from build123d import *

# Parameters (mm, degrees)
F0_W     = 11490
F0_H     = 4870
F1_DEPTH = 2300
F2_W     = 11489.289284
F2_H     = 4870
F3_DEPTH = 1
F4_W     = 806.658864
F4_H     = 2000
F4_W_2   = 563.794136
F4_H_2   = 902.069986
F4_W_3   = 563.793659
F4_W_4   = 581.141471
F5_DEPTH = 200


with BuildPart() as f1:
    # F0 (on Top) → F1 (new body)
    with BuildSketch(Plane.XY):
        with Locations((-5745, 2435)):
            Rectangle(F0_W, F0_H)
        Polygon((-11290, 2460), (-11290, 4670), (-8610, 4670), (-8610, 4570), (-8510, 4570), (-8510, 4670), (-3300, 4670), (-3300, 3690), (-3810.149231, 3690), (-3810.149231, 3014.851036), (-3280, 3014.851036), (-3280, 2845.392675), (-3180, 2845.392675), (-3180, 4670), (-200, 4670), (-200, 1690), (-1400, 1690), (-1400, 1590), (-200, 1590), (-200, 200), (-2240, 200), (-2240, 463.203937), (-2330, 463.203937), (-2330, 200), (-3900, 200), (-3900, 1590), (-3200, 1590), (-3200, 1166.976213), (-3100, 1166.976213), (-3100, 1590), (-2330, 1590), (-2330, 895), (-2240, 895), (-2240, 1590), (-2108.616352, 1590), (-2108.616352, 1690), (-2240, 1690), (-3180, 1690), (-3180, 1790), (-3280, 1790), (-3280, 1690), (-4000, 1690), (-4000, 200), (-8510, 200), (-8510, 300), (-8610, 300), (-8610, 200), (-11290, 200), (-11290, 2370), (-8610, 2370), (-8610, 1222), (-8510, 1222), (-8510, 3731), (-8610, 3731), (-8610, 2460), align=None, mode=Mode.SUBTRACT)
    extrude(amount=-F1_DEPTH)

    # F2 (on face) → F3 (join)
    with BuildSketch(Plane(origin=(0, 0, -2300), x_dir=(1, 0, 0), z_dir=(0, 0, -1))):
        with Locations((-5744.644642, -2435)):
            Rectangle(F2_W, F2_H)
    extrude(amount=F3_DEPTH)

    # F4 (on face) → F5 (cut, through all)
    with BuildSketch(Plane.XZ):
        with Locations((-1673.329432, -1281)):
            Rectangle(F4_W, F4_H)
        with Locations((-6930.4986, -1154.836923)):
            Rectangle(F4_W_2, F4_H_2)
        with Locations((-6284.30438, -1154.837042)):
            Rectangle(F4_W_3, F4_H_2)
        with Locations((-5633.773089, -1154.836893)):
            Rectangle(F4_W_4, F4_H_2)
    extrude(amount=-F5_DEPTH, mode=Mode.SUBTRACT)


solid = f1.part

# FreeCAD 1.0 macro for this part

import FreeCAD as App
import Part
import Sketcher


def add_polygon(sketch, points):
    """Adds a closed chain of lines whose ends are joined by coincident constraints."""
    first, n = sketch.GeometryCount, len(points)
    for a, b in zip(points, points[1:] + points[:1]):
        sketch.addGeometry(Part.LineSegment(App.Vector(*a, 0), App.Vector(*b, 0)), False)
    for i in range(n):
        sketch.addConstraint(Sketcher.Constraint("Coincident", first + i, 2, first + (i + 1) % n, 1))

doc = App.newDocument("Part")
body = doc.addObject("PartDesign::Body", "Body")

# Sketch on XY plane
sketch1 = doc.addObject("Sketcher::SketchObject", "Sketch")
body.addObject(sketch1)
sketch1.AttachmentSupport = (doc.XY_Plane, [""])
sketch1.MapMode = "FlatFace"
add_polygon(sketch1, [(-11490, 4870), (-11490, 0), (0, 0), (0, 4870)])  # lines 0-3
add_polygon(sketch1, [(-8610, 2460), (-11290, 2460), (-11290, 4670), (-8610, 4670), (-8610, 4570), (-8510, 4570), (-8510, 4670), (-3300, 4670), (-3300, 3690), (-3810, 3690), (-3810, 3015), (-3280, 3015), (-3280, 2845), (-3180, 2845), (-3180, 4670), (-200, 4670), (-200, 1690), (-1400, 1690), (-1400, 1590), (-200, 1590), (-200, 200), (-2240, 200), (-2240, 463), (-2330, 463), (-2330, 200), (-3900, 200), (-3900, 1590), (-3200, 1590), (-3200, 1167), (-3100, 1167), (-3100, 1590), (-2330, 1590), (-2330, 895), (-2240, 895), (-2240, 1590), (-2109, 1590), (-2109, 1690), (-3180, 1690), (-3180, 1790), (-3280, 1790), (-3280, 1690), (-4000, 1690), (-4000, 200), (-8510, 200), (-8510, 300), (-8610, 300), (-8610, 200), (-11290, 200), (-11290, 2370), (-8610, 2370), (-8610, 1222), (-8510, 1222), (-8510, 3731), (-8610, 3731)])  # lines 4-57
sketch1.addConstraint([
    Sketcher.Constraint("Vertical", 0),
    Sketcher.Constraint("Horizontal", 1),
    Sketcher.Constraint("Vertical", 2),
    Sketcher.Constraint("Horizontal", 3),
    Sketcher.Constraint("Horizontal", 4),
    Sketcher.Constraint("Vertical", 5),
    Sketcher.Constraint("Horizontal", 6),
    Sketcher.Constraint("Vertical", 7),
    Sketcher.Constraint("Horizontal", 8),
    Sketcher.Constraint("Vertical", 9),
    Sketcher.Constraint("Horizontal", 10),
    Sketcher.Constraint("Vertical", 11),
    Sketcher.Constraint("Horizontal", 12),
    Sketcher.Constraint("Vertical", 13),
    Sketcher.Constraint("Horizontal", 14),
    Sketcher.Constraint("Vertical", 15),
    Sketcher.Constraint("Horizontal", 16),
    Sketcher.Constraint("Vertical", 17),
    Sketcher.Constraint("Horizontal", 18),
    Sketcher.Constraint("Vertical", 19),
    Sketcher.Constraint("Horizontal", 20),
    Sketcher.Constraint("Vertical", 21),
    Sketcher.Constraint("Horizontal", 22),
    Sketcher.Constraint("Vertical", 23),
    Sketcher.Constraint("Horizontal", 24),
    Sketcher.Constraint("Vertical", 25),
    Sketcher.Constraint("Horizontal", 26),
    Sketcher.Constraint("Vertical", 27),
    Sketcher.Constraint("Horizontal", 28),
    Sketcher.Constraint("Vertical", 29),
    Sketcher.Constraint("Horizontal", 30),
    Sketcher.Constraint("Vertical", 31),
    Sketcher.Constraint("Horizontal", 32),
    Sketcher.Constraint("Vertical", 33),
    Sketcher.Constraint("Horizontal", 34),
    Sketcher.Constraint("Vertical", 35),
    Sketcher.Constraint("Horizontal", 36),
    Sketcher.Constraint("Vertical", 37),
    Sketcher.Constraint("Horizontal", 38),
    Sketcher.Constraint("Vertical", 39),
    Sketcher.Constraint("Horizontal", 40),
    Sketcher.Constraint("Vertical", 41),
    Sketcher.Constraint("Horizontal", 42),
    Sketcher.Constraint("Vertical", 43),
    Sketcher.Constraint("Horizontal", 44),
    Sketcher.Constraint("Vertical", 45),
    Sketcher.Constraint("Horizontal", 46),
    Sketcher.Constraint("Vertical", 47),
    Sketcher.Constraint("Horizontal", 48),
    Sketcher.Constraint("Vertical", 49),
    Sketcher.Constraint("Horizontal", 50),
    Sketcher.Constraint("Vertical", 51),
    Sketcher.Constraint("Horizontal", 52),
    Sketcher.Constraint("Vertical", 53),
    Sketcher.Constraint("Horizontal", 54),
    Sketcher.Constraint("Vertical", 55),
    Sketcher.Constraint("Horizontal", 56),
    Sketcher.Constraint("Vertical", 57),
    Sketcher.Constraint("Coincident", 1, 2, -1, 1),
    Sketcher.Constraint("Horizontal", 6, 2, 9, 2),
    Sketcher.Constraint("Horizontal", 10, 2, 17, 2),
    Sketcher.Constraint("Horizontal", 24, 2, 27, 2),
    Sketcher.Constraint("Horizontal", 22, 2, 29, 2),
    Sketcher.Constraint("Horizontal", 30, 2, 33, 2),
    Sketcher.Constraint("Horizontal", 34, 2, 37, 2),
    Sketcher.Constraint("Horizontal", 20, 2, 39, 2),
    Sketcher.Constraint("Horizontal", 40, 2, 43, 2),
    Sketcher.Constraint("Horizontal", 28, 2, 45, 2),
    Sketcher.Constraint("Horizontal", 46, 2, 49, 2),
    Sketcher.Constraint("Vertical", 19, 2, 22, 2),
    Sketcher.Constraint("Vertical", 27, 2, 34, 2),
    Sketcher.Constraint("Vertical", 25, 2, 36, 2),
    Sketcher.Constraint("Vertical", 17, 2, 40, 2),
    Sketcher.Constraint("Vertical", 15, 2, 42, 2),
    Sketcher.Constraint("Vertical", 9, 2, 46, 2),
    Sketcher.Constraint("Vertical", 7, 2, 48, 2),
    Sketcher.Constraint("Vertical", 5, 2, 50, 2),
    Sketcher.Constraint("Vertical", 49, 2, 52, 2),
    Sketcher.Constraint("Vertical", 47, 2, 54, 2),
    Sketcher.Constraint("Vertical", 53, 2, 56, 2),
    Sketcher.Constraint("Equal", 8, 16),
    Sketcher.Constraint("Equal", 16, 32),
    Sketcher.Constraint("Equal", 56, 7),
    Sketcher.Constraint("Equal", 18, 19),
    Sketcher.Constraint("Equal", 9, 21),
    Sketcher.Constraint("Equal", 39, 41),
    Sketcher.Constraint("Equal", 43, 47),
    Sketcher.Constraint("DistanceX", 1, 1, 1, 2, 11490.0),
    Sketcher.Constraint("DistanceX", 4, 2, 4, 1, 2680.0),
    Sketcher.Constraint("DistanceX", 8, 1, 8, 2, 100.0),
    Sketcher.Constraint("DistanceX", 10, 1, 10, 2, 5210.0),
    Sketcher.Constraint("DistanceX", 18, 1, 18, 2, 2980.0),
    Sketcher.Constraint("DistanceX", 20, 2, 20, 1, 1200.0),
    Sketcher.Constraint("DistanceX", 24, 2, 24, 1, 2040.0),
    Sketcher.Constraint("DistanceX", 26, 2, 26, 1, 90.0),
    Sketcher.Constraint("DistanceX", 28, 2, 28, 1, 1570.0),
    Sketcher.Constraint("DistanceX", 30, 1, 30, 2, 700.0),
    Sketcher.Constraint("DistanceX", 44, 2, 44, 1, 720.0),
    Sketcher.Constraint("DistanceX", 46, 2, 46, 1, 4510.0),
    Sketcher.Constraint("DistanceY", 0, 2, 0, 1, 4870.0),
    Sketcher.Constraint("DistanceY", 5, 1, 5, 2, 2210.0),
    Sketcher.Constraint("DistanceY", 11, 2, 11, 1, 980.0),
    Sketcher.Constraint("DistanceY", 23, 2, 23, 1, 1390.0),
    Sketcher.Constraint("DistanceY", 35, 2, 35, 1, 695.0),
    Sketcher.Constraint("DistanceY", 51, 1, 51, 2, 2170.0),
    Sketcher.Constraint("DistanceY", 53, 2, 53, 1, 1148.0),
    Sketcher.Constraint("DistanceY", 55, 1, 55, 2, 2509.0),
    Sketcher.Constraint("DistanceX", 4, 2, -1, 1, 11290.0),
    Sketcher.Constraint("DistanceY", -1, 1, 4, 2, 2460.0),
    Sketcher.Constraint("DistanceX", 12, 2, 12, 1, 510.149231),
    Sketcher.Constraint("DistanceX", 38, 1, 38, 2, 131.383648),
    Sketcher.Constraint("DistanceY", 15, 2, 15, 1, 169.458361),
    Sketcher.Constraint("DistanceY", 13, 2, 13, 1, 675.148964),
    Sketcher.Constraint("DistanceY", 25, 1, 25, 2, 263.203937),
    Sketcher.Constraint("DistanceY", 31, 2, 31, 1, 423.023787),
])
pad1 = doc.addObject("PartDesign::Pad", "Pad")
body.addObject(pad1)
pad1.Profile = sketch1
pad1.Length = 2300
pad1.Reversed = True

# Sketch on XY plane
sketch2 = doc.addObject("Sketcher::SketchObject", "Sketch001")
body.addObject(sketch2)
sketch2.AttachmentSupport = (doc.XY_Plane, [""])
sketch2.MapMode = "FlatFace"
sketch2.AttachmentOffset = App.Placement(App.Vector(0, 0, -2300), App.Rotation())
add_polygon(sketch2, [(-11489, 0), (-11489, 4870), (0, 4870), (0, 0)])  # lines 0-3
sketch2.addConstraint([
    Sketcher.Constraint("Vertical", 0),
    Sketcher.Constraint("Horizontal", 1),
    Sketcher.Constraint("Vertical", 2),
    Sketcher.Constraint("Horizontal", 3),
    Sketcher.Constraint("Coincident", 2, 2, -1, 1),
    Sketcher.Constraint("DistanceY", 0, 1, 0, 2, 4870.0),
    Sketcher.Constraint("DistanceX", 1, 1, 1, 2, 11489.289284),
])
pad2 = doc.addObject("PartDesign::Pad", "Pad001")
body.addObject(pad2)
pad2.Profile = sketch2
pad2.Length = 1
pad2.Reversed = True

# Sketch on XZ plane
sketch3 = doc.addObject("Sketcher::SketchObject", "Sketch002")
body.addObject(sketch3)
sketch3.AttachmentSupport = (doc.XZ_Plane, [""])
sketch3.MapMode = "FlatFace"
add_polygon(sketch3, [(-2077, -281), (-2077, -2281), (-1270, -2281), (-1270, -281)])  # lines 0-3
add_polygon(sketch3, [(-7212, -704), (-7212, -1606), (-6649, -1606), (-6649, -704)])  # lines 4-7
add_polygon(sketch3, [(-6566, -704), (-6566, -1606), (-6002, -1606), (-6002, -704)])  # lines 8-11
add_polygon(sketch3, [(-5924, -704), (-5924, -1606), (-5343, -1606), (-5343, -704)])  # lines 12-15
sketch3.addConstraint([
    Sketcher.Constraint("Vertical", 0),
    Sketcher.Constraint("Horizontal", 1),
    Sketcher.Constraint("Vertical", 2),
    Sketcher.Constraint("Horizontal", 3),
    Sketcher.Constraint("Vertical", 4),
    Sketcher.Constraint("Horizontal", 5),
    Sketcher.Constraint("Vertical", 6),
    Sketcher.Constraint("Horizontal", 7),
    Sketcher.Constraint("Vertical", 8),
    Sketcher.Constraint("Horizontal", 9),
    Sketcher.Constraint("Vertical", 10),
    Sketcher.Constraint("Horizontal", 11),
    Sketcher.Constraint("Vertical", 12),
    Sketcher.Constraint("Horizontal", 13),
    Sketcher.Constraint("Vertical", 14),
    Sketcher.Constraint("Horizontal", 15),
    Sketcher.Constraint("Equal", 6, 8),
    Sketcher.Constraint("Equal", 10, 12),
    Sketcher.Constraint("DistanceY", 0, 2, 0, 1, 2000.0),
    Sketcher.Constraint("DistanceY", 0, 2, -1, 1, 2281.0),
    Sketcher.Constraint("DistanceX", 1, 2, -1, 1, 1270.0),
    Sketcher.Constraint("DistanceX", 9, 1, 9, 2, 563.793659),
    Sketcher.Constraint("DistanceX", 13, 1, 13, 2, 581.141471),
    Sketcher.Constraint("DistanceY", 14, 2, -1, 1, 703.8019),
    Sketcher.Constraint("DistanceX", 1, 1, 1, 2, 806.658864),
    Sketcher.Constraint("DistanceX", 5, 1, 5, 2, 563.794136),
    Sketcher.Constraint("DistanceY", 4, 2, 4, 1, 902.069986),
    Sketcher.Constraint("DistanceX", 4, 2, -1, 1, 7212.395668),
    Sketcher.Constraint("DistanceY", 6, 2, -1, 1, 703.80193),
    Sketcher.Constraint("DistanceX", 8, 2, -1, 1, 6566.20121),
    Sketcher.Constraint("DistanceY", 10, 2, -1, 1, 703.802049),
    Sketcher.Constraint("DistanceX", 5, 2, 13, 2, 1305.399178),
])
pocket1 = doc.addObject("PartDesign::Pocket", "Pocket")
body.addObject(pocket1)
pocket1.Profile = sketch3
pocket1.Length = 200

doc.recompute()
